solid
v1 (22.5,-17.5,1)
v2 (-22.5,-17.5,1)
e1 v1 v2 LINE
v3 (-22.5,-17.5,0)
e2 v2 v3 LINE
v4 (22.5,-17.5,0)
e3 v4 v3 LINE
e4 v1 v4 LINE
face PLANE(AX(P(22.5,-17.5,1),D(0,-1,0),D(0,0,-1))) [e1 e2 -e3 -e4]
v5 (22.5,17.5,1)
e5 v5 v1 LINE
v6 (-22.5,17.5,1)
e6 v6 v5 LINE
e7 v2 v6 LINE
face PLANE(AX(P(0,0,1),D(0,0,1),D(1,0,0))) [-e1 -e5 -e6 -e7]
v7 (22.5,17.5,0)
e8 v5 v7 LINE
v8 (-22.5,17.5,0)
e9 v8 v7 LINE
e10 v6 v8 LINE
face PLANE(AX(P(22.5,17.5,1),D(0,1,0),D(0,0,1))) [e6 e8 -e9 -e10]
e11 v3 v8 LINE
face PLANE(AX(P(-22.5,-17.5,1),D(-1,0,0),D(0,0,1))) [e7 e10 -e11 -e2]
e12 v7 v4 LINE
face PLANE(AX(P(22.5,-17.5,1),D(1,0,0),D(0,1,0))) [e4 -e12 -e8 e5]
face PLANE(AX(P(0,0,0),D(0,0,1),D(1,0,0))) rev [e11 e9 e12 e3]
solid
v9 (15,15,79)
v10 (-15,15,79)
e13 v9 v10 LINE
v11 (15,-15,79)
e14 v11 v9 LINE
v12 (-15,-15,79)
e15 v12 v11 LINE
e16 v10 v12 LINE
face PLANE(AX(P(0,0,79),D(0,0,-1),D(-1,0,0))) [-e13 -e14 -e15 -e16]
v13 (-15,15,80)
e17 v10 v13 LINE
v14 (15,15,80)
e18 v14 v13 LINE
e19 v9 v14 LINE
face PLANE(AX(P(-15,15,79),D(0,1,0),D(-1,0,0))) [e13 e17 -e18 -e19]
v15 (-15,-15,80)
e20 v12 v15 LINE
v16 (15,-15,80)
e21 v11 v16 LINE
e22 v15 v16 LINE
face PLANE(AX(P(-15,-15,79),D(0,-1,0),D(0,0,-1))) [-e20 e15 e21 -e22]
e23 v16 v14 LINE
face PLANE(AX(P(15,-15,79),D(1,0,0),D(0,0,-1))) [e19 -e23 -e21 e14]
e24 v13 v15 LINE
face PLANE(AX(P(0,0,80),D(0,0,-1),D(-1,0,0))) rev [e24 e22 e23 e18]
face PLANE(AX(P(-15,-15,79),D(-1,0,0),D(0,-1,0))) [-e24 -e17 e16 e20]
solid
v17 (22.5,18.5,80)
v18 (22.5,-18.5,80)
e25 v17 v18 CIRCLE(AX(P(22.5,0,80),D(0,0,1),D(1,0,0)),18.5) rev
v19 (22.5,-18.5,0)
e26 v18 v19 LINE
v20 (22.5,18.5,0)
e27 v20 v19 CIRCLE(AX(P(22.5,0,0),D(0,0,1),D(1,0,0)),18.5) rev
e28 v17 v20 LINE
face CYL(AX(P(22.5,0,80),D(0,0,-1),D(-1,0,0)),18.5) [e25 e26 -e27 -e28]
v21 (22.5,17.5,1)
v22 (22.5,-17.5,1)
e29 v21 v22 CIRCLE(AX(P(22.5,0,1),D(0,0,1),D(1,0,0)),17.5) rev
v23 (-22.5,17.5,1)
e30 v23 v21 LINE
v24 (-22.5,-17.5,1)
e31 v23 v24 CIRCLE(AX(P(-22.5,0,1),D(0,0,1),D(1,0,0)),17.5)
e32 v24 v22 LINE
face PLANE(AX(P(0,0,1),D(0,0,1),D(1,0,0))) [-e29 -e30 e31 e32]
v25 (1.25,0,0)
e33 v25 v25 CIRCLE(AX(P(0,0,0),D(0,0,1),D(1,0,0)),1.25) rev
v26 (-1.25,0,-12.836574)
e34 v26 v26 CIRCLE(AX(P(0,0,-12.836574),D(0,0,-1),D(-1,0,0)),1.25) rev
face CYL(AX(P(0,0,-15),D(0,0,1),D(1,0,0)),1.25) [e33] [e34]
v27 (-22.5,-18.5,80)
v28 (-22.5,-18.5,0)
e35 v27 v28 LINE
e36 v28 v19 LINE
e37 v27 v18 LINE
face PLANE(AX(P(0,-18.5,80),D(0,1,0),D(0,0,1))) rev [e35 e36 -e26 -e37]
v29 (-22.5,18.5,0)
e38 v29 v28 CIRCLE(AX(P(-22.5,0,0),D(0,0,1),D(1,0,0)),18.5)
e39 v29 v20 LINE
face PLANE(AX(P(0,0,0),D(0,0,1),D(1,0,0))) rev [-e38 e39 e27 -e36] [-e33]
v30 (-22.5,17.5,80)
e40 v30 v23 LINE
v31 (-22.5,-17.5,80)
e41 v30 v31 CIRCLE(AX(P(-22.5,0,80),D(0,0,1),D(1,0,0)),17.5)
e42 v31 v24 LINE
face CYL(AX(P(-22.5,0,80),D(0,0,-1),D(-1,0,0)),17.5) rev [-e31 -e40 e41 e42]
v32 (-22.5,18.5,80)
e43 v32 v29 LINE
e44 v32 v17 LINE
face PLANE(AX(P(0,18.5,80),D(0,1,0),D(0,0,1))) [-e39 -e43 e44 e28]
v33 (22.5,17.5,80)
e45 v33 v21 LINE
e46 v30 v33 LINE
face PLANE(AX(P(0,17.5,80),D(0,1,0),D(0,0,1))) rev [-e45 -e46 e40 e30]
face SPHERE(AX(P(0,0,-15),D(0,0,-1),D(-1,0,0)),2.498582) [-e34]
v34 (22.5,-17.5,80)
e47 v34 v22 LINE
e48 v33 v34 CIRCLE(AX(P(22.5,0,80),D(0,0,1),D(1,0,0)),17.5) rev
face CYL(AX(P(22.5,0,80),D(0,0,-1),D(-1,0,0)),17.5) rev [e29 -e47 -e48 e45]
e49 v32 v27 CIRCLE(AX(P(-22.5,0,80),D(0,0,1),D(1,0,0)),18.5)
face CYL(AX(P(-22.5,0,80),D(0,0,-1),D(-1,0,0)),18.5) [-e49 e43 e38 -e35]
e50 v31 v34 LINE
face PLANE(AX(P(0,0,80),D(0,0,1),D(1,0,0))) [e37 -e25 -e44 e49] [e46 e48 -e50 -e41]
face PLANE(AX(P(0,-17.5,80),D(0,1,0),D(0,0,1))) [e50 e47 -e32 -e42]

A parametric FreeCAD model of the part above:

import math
import FreeCAD as App
import Part
import Sketcher
from FreeCAD import Vector


def faces_at(feature, points):
    """Names of the faces that lie closest to the given points."""
    faces = feature.Shape.Faces
    near = lambda p: min(range(len(faces)), key=lambda i: faces[i].distToShape(Part.Vertex(*p))[0])
    return sorted({f"Face{near(p) + 1}" for p in points})

doc = App.newDocument("Part")
params = doc.addObject("Spreadsheet::Sheet", "Params")
for row, (alias, value) in enumerate([
    ("sketch1_radius", "18.5 mm"),
    ("sketch1_width", "45 mm"),
    ("pad1_length", "80 mm"),
    ("thickness_wall", "1 mm"),
    ("sketch2_width", "45 mm"),
    ("sketch2_height", "35 mm"),
    ("pad2_length", "1 mm"),
    ("sketch3_diameter", "2.5 mm"),
    ("pad3_length", "15 mm"),
    ("revolution_angle", "360 deg"),
    ("sketch5_width", "45 mm"),
    ("sketch5_height", "35 mm"),
    ("pad4_length", "1 mm"),
    ("sketch6_width", "30 mm"),
    ("pad5_length", "1 mm"),
], start=1):
    params.set(f"A{row}", alias)
    params.set(f"B{row}", "=" + value)
    params.setAlias(f"B{row}", alias)

body = doc.addObject("PartDesign::Body", "Body")

sketch1 = body.newObject("Sketcher::SketchObject", "Sketch")
sketch1.AttachmentSupport = (doc.getObject("XY_Plane"), [""])
sketch1.MapMode = "FlatFace"
sketch1.addGeometry(Part.LineSegment(Vector(-22.5, -18.5, 0), Vector(22.5, -18.5, 0)), False)
sketch1.addGeometry(Part.ArcOfCircle(Part.Circle(Vector(22.5, 0, 0), Vector(0, 0, 1), 18.5), math.radians(-90), math.radians(90)), False)
sketch1.addGeometry(Part.LineSegment(Vector(22.5, 18.5, 0), Vector(-22.5, 18.5, 0)), False)
sketch1.addGeometry(Part.ArcOfCircle(Part.Circle(Vector(-22.5, 0, 0), Vector(0, 0, 1), 18.5), math.radians(90), math.radians(270)), False)
sketch1.addConstraint(Sketcher.Constraint("Tangent", 0, 2, 1, 1))
sketch1.addConstraint(Sketcher.Constraint("Tangent", 1, 2, 2, 1))
sketch1.addConstraint(Sketcher.Constraint("Tangent", 2, 2, 3, 1))
sketch1.addConstraint(Sketcher.Constraint("Tangent", 3, 2, 0, 1))
sketch1.addConstraint(Sketcher.Constraint("Horizontal", 0))
sketch1.addConstraint(Sketcher.Constraint("Horizontal", 2))
sketch1.addConstraint(Sketcher.Constraint("Symmetric", 1, 3, 3, 3, -1, 1))
sketch1.addConstraint(Sketcher.Constraint("Radius", 1, 18.5))
sketch1.addConstraint(Sketcher.Constraint("DistanceX", 0, 1, 0, 2, 45.0))
sketch1.setExpression("Constraints[7]", "Params.sketch1_radius")
sketch1.setExpression("Constraints[8]", "Params.sketch1_width")
pad1 = body.newObject("PartDesign::Pad", "Pad")
pad1.Profile = sketch1
pad1.setExpression("Length", "Params.pad1_length")
doc.recompute()

thickness = body.newObject("PartDesign::Thickness", "Thickness")
thickness.Base = (pad1, faces_at(pad1, [(0, 0, 80)]))
thickness.setExpression("Value", "Params.thickness_wall")
thickness.Reversed = True
thickness.Join = "Intersection"
body2 = doc.addObject("PartDesign::Body", "Body001")

sketch2 = body2.newObject("Sketcher::SketchObject", "Sketch001")
sketch2.AttachmentSupport = (doc.getObject("XY_Plane001"), [""])
sketch2.MapMode = "FlatFace"
sketch2.addGeometry(Part.LineSegment(Vector(22.5, 17.5, 0), Vector(22.5, -17.5, 0)), False)
sketch2.addGeometry(Part.LineSegment(Vector(22.5, -17.5, 0), Vector(-22.5, -17.5, 0)), False)
sketch2.addGeometry(Part.LineSegment(Vector(-22.5, -17.5, 0), Vector(-22.5, 17.5, 0)), False)
sketch2.addGeometry(Part.LineSegment(Vector(-22.5, 17.5, 0), Vector(22.5, 17.5, 0)), False)
sketch2.addConstraint(Sketcher.Constraint("Coincident", 0, 2, 1, 1))
sketch2.addConstraint(Sketcher.Constraint("Coincident", 1, 2, 2, 1))
sketch2.addConstraint(Sketcher.Constraint("Coincident", 2, 2, 3, 1))
sketch2.addConstraint(Sketcher.Constraint("Coincident", 3, 2, 0, 1))
sketch2.addConstraint(Sketcher.Constraint("Vertical", 0))
sketch2.addConstraint(Sketcher.Constraint("Horizontal", 1))
sketch2.addConstraint(Sketcher.Constraint("Vertical", 2))
sketch2.addConstraint(Sketcher.Constraint("Horizontal", 3))
sketch2.addConstraint(Sketcher.Constraint("Symmetric", 0, 2, 2, 2, -1, 1))
sketch2.addConstraint(Sketcher.Constraint("DistanceX", 1, 2, 1, 1, 45.0))
sketch2.addConstraint(Sketcher.Constraint("DistanceY", 0, 2, 0, 1, 35.0))
sketch2.setExpression("Constraints[9]", "Params.sketch2_width")
sketch2.setExpression("Constraints[10]", "Params.sketch2_height")
pad2 = body2.newObject("PartDesign::Pad", "Pad001")
pad2.Profile = sketch2
pad2.setExpression("Length", "Params.pad2_length")
doc.recompute()

boolean = body.newObject("PartDesign::Boolean", "Boolean")
boolean.Type = "Fuse"
boolean.addObjects([body2])

sketch3 = body.newObject("Sketcher::SketchObject", "Sketch002")
sketch3.AttachmentSupport = (doc.getObject("XY_Plane"), [""])
sketch3.MapMode = "FlatFace"
sketch3.addGeometry(Part.Circle(Vector(0, 0, 0), Vector(0, 0, 1), 1.25), False)
sketch3.addConstraint(Sketcher.Constraint("Coincident", 0, 3, -1, 1))
sketch3.addConstraint(Sketcher.Constraint("Diameter", 0, 2.5))
sketch3.setExpression("Constraints[1]", "Params.sketch3_diameter")
pad3 = body.newObject("PartDesign::Pad", "Pad002")
pad3.Profile = sketch3
pad3.setExpression("Length", "Params.pad3_length")
pad3.Reversed = True

sketch4 = body.newObject("Sketcher::SketchObject", "Sketch003")
sketch4.AttachmentSupport = (doc.getObject("XY_Plane"), [""])
sketch4.MapMode = "FlatFace"
sketch4.AttachmentOffset = App.Placement(Vector(0, 0, -15), App.Rotation())
sketch4.addGeometry(Part.LineSegment(Vector(0, -2.498582, 0), Vector(0, 2.498582, 0)), False)
sketch4.addGeometry(Part.ArcOfCircle(Part.Circle(Vector(0, 0, 0), Vector(0, 0, 1), 2.498582), math.radians(-90), math.radians(90)), False)
sketch4.addConstraint(Sketcher.Constraint("Coincident", 0, 1, 1, 1))
sketch4.addConstraint(Sketcher.Constraint("Coincident", 1, 2, 0, 2))
sketch4.addConstraint(Sketcher.Constraint("Vertical", 0))
sketch4.addConstraint(Sketcher.Constraint("Coincident", 1, 3, -1, 1))
sketch4.addConstraint(Sketcher.Constraint("PointOnObject", 0, 1, -2))
sketch4.addConstraint(Sketcher.Constraint("Radius", 1, 2.498582))
revolution = body.newObject("PartDesign::Revolution", "Revolution")
revolution.Profile = sketch4
revolution.ReferenceAxis = (sketch4, ["V_Axis"])
revolution.setExpression("Angle", "Params.revolution_angle")
body3 = doc.addObject("PartDesign::Body", "Body002")

sketch5 = body3.newObject("Sketcher::SketchObject", "Sketch004")
sketch5.AttachmentSupport = (doc.getObject("XY_Plane002"), [""])
sketch5.MapMode = "FlatFace"
sketch5.addGeometry(Part.LineSegment(Vector(22.5, 17.5, 0), Vector(22.5, -17.5, 0)), False)
sketch5.addGeometry(Part.LineSegment(Vector(22.5, -17.5, 0), Vector(-22.5, -17.5, 0)), False)
sketch5.addGeometry(Part.LineSegment(Vector(-22.5, -17.5, 0), Vector(-22.5, 17.5, 0)), False)
sketch5.addGeometry(Part.LineSegment(Vector(-22.5, 17.5, 0), Vector(22.5, 17.5, 0)), False)
sketch5.addConstraint(Sketcher.Constraint("Coincident", 0, 2, 1, 1))
sketch5.addConstraint(Sketcher.Constraint("Coincident", 1, 2, 2, 1))
sketch5.addConstraint(Sketcher.Constraint("Coincident", 2, 2, 3, 1))
sketch5.addConstraint(Sketcher.Constraint("Coincident", 3, 2, 0, 1))
sketch5.addConstraint(Sketcher.Constraint("Vertical", 0))
sketch5.addConstraint(Sketcher.Constraint("Horizontal", 1))
sketch5.addConstraint(Sketcher.Constraint("Vertical", 2))
sketch5.addConstraint(Sketcher.Constraint("Horizontal", 3))
sketch5.addConstraint(Sketcher.Constraint("Symmetric", 0, 2, 2, 2, -1, 1))
sketch5.addConstraint(Sketcher.Constraint("DistanceX", 1, 2, 1, 1, 45.0))
sketch5.addConstraint(Sketcher.Constraint("DistanceY", 0, 2, 0, 1, 35.0))
sketch5.setExpression("Constraints[9]", "Params.sketch5_width")
sketch5.setExpression("Constraints[10]", "Params.sketch5_height")
pad4 = body3.newObject("PartDesign::Pad", "Pad003")
pad4.Profile = sketch5
pad4.setExpression("Length", "Params.pad4_length")
body4 = doc.addObject("PartDesign::Body", "Body003")

sketch6 = body4.newObject("Sketcher::SketchObject", "Sketch005")
sketch6.AttachmentSupport = (doc.getObject("XY_Plane003"), [""])
sketch6.MapMode = "FlatFace"
sketch6.AttachmentOffset = App.Placement(Vector(0, 0, 80), App.Rotation())
sketch6.addGeometry(Part.LineSegment(Vector(-15, 15, 0), Vector(-15, -15, 0)), False)
sketch6.addGeometry(Part.LineSegment(Vector(-15, -15, 0), Vector(15, -15, 0)), False)
sketch6.addGeometry(Part.LineSegment(Vector(15, -15, 0), Vector(15, 15, 0)), False)
sketch6.addGeometry(Part.LineSegment(Vector(15, 15, 0), Vector(-15, 15, 0)), False)
sketch6.addConstraint(Sketcher.Constraint("Coincident", 0, 2, 1, 1))
sketch6.addConstraint(Sketcher.Constraint("Coincident", 1, 2, 2, 1))
sketch6.addConstraint(Sketcher.Constraint("Coincident", 2, 2, 3, 1))
sketch6.addConstraint(Sketcher.Constraint("Coincident", 3, 2, 0, 1))
sketch6.addConstraint(Sketcher.Constraint("Vertical", 0))
sketch6.addConstraint(Sketcher.Constraint("Horizontal", 1))
sketch6.addConstraint(Sketcher.Constraint("Vertical", 2))
sketch6.addConstraint(Sketcher.Constraint("Horizontal", 3))
sketch6.addConstraint(Sketcher.Constraint("Symmetric", 0, 2, 2, 2, -1, 1))
sketch6.addConstraint(Sketcher.Constraint("Equal", 3, 0))
sketch6.addConstraint(Sketcher.Constraint("DistanceX", 1, 1, 1, 2, 30.0))
sketch6.setExpression("Constraints[10]", "Params.sketch6_width")
pad5 = body4.newObject("PartDesign::Pad", "Pad004")
pad5.Profile = sketch6
pad5.setExpression("Length", "Params.pad5_length")
pad5.Reversed = True

doc.recompute()
